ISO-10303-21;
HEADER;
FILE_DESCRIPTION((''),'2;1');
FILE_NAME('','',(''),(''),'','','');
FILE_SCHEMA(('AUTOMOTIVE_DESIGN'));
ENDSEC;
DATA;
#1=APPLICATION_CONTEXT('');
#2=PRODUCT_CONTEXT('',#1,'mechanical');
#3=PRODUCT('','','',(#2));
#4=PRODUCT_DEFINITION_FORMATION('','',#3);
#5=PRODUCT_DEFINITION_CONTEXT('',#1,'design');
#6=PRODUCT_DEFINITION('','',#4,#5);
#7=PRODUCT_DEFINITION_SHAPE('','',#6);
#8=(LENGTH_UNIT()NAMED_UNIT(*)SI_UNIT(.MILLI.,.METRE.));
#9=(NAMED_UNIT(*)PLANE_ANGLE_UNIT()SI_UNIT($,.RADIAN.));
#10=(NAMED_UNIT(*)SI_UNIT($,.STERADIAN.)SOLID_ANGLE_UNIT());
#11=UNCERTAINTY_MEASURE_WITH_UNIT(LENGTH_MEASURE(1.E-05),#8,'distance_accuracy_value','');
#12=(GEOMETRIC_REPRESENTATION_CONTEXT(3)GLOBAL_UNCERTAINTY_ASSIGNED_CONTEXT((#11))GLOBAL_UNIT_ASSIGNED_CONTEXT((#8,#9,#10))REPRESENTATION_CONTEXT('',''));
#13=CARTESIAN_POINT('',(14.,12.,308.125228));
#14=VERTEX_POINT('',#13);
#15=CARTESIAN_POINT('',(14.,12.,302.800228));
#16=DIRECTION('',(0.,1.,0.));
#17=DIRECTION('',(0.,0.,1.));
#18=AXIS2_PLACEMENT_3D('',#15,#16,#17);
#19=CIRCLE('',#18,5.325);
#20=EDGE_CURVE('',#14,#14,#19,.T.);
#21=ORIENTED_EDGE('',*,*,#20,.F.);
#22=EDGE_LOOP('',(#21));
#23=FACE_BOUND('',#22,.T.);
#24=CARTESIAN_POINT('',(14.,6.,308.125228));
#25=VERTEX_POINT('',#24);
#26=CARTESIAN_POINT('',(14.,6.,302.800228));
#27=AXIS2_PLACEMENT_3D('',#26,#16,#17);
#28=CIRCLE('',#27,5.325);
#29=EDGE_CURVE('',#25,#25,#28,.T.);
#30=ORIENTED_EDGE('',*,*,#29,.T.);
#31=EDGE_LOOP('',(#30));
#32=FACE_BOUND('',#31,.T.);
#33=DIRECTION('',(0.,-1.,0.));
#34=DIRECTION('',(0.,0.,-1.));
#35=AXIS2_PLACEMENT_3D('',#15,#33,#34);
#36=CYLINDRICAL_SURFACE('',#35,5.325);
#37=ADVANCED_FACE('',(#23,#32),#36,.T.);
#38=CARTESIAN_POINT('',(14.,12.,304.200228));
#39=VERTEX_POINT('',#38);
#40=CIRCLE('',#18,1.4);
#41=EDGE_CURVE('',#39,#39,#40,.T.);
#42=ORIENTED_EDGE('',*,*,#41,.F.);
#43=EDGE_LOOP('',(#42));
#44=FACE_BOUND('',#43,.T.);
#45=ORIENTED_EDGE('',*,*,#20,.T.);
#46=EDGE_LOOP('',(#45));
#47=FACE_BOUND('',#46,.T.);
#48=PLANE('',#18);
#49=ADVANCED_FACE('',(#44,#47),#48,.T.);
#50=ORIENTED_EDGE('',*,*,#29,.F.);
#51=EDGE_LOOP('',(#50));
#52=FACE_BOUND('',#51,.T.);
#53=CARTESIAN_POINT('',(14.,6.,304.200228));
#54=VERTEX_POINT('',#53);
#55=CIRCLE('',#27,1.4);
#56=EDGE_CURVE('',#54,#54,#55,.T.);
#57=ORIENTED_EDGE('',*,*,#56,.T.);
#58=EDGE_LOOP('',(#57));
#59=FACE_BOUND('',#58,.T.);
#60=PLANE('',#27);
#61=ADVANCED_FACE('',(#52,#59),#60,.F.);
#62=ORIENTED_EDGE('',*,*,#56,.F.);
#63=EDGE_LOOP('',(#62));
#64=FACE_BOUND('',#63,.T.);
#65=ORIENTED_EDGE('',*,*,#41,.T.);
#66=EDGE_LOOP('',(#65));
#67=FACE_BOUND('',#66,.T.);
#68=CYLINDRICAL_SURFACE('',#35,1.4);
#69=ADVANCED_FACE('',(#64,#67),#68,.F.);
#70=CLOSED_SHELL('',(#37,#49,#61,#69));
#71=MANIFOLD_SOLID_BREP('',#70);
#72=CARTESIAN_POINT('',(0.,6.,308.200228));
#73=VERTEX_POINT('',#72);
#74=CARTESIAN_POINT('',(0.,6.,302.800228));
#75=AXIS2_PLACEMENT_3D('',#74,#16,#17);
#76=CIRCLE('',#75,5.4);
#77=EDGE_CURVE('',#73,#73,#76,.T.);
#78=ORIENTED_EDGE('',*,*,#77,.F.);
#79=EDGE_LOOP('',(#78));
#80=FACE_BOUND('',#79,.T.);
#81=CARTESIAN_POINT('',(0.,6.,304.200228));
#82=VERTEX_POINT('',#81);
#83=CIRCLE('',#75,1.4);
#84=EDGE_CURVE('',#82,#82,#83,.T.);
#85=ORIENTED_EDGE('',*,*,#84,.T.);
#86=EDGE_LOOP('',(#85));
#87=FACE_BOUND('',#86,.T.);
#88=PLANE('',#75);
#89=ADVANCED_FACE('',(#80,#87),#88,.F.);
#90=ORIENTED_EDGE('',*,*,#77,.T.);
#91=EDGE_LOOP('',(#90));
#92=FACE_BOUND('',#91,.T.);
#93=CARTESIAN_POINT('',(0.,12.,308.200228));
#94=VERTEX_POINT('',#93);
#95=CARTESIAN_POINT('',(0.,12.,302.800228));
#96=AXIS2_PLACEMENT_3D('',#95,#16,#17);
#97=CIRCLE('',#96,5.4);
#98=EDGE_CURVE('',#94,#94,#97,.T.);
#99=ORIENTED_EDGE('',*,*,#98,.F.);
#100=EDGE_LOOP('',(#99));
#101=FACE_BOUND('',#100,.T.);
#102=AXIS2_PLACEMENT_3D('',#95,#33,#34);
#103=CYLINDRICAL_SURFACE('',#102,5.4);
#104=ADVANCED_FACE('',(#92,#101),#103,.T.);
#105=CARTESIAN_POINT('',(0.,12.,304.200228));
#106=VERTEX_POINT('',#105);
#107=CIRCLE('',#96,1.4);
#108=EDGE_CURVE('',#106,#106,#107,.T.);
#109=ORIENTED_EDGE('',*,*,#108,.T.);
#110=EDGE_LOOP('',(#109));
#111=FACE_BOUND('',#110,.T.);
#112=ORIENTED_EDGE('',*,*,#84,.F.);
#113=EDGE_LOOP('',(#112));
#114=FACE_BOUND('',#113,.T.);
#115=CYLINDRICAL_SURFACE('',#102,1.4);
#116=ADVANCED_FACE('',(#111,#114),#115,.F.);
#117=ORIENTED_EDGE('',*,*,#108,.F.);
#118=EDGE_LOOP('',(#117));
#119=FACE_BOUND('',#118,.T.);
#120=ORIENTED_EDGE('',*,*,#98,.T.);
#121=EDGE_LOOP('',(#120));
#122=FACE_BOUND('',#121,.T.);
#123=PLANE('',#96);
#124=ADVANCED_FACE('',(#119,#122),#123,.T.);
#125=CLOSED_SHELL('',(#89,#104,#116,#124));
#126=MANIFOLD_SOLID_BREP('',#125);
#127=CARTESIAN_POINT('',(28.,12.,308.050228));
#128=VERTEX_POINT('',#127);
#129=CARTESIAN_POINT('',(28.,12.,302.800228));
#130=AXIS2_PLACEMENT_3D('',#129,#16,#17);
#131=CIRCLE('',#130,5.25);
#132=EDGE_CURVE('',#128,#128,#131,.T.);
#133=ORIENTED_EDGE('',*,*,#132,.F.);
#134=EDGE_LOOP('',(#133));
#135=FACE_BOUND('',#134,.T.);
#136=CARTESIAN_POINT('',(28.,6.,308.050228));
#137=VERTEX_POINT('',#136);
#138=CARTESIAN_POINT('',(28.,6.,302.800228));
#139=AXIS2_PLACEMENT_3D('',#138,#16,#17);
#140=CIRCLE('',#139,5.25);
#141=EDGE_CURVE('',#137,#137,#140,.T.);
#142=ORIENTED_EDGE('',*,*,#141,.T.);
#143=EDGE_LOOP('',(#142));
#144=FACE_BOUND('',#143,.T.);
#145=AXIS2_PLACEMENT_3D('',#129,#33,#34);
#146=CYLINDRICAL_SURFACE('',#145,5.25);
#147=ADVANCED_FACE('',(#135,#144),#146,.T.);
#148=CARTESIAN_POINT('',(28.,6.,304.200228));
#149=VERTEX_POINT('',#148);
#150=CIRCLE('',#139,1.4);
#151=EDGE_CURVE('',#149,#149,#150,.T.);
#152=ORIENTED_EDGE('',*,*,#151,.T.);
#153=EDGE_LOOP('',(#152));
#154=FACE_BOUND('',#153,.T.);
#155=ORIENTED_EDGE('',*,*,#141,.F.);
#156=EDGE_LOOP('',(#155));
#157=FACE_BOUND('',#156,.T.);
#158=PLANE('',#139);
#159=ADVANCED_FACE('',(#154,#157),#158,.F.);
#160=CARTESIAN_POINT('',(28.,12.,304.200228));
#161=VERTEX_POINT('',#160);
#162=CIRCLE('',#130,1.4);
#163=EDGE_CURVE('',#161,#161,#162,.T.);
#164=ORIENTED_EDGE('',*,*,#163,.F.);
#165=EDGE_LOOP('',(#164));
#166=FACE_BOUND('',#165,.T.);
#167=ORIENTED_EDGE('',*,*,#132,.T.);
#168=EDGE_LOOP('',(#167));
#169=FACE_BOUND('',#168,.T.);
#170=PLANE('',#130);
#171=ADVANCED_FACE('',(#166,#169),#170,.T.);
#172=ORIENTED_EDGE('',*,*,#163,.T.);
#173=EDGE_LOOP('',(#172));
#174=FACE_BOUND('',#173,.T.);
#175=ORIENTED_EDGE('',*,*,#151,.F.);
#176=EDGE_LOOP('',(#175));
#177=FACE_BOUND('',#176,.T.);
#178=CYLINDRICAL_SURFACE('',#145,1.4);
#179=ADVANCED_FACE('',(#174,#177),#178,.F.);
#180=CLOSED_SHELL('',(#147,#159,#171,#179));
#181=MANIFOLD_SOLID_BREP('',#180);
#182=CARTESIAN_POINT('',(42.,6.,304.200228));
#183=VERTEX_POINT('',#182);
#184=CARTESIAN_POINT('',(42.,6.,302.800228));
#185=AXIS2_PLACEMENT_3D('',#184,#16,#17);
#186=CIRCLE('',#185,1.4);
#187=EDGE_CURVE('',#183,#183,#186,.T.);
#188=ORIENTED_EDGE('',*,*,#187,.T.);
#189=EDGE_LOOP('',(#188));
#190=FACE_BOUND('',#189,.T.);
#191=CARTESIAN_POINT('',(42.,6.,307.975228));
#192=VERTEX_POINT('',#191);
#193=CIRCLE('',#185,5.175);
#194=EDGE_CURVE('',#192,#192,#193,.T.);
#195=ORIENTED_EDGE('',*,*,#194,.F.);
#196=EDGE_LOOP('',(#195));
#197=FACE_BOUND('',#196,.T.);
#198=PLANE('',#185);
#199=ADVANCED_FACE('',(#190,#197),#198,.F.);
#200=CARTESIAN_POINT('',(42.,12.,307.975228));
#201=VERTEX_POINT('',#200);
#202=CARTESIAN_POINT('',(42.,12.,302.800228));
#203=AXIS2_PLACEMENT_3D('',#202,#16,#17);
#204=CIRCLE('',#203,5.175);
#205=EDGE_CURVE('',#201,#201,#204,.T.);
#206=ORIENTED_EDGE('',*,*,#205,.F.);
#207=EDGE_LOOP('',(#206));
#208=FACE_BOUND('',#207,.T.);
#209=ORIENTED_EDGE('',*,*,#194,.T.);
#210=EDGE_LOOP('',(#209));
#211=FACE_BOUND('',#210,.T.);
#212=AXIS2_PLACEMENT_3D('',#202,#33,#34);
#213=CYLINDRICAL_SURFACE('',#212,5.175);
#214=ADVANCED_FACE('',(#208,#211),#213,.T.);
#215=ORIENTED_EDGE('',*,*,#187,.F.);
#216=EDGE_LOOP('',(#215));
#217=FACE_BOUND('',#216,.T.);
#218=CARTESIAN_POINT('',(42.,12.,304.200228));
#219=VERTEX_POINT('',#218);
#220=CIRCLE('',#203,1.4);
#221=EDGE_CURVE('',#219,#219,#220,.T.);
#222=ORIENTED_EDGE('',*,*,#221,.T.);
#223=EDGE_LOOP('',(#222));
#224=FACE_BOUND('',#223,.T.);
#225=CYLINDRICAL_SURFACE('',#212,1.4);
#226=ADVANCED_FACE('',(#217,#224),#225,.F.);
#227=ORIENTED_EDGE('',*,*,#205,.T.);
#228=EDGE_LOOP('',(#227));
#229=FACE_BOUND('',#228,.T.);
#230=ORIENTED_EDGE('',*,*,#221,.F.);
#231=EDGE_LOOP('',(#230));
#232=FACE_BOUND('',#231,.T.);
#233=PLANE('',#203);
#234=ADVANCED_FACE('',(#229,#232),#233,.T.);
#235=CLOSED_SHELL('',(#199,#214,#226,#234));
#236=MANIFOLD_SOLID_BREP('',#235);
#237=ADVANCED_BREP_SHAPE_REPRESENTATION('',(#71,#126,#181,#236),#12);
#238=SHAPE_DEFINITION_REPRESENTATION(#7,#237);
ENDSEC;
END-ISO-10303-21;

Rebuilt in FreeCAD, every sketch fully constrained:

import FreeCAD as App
import Part
import Sketcher
from FreeCAD import Vector

doc = App.newDocument("Part")
body = doc.addObject("PartDesign::Body", "Body")

sketch1 = body.newObject("Sketcher::SketchObject", "Sketch")
sketch1.AttachmentSupport = (doc.getObject("XZ_Plane"), [""])
sketch1.MapMode = "FlatFace"
sketch1.AttachmentOffset = App.Placement(Vector(0, 0, -6), App.Rotation())
sketch1.addGeometry(Part.Circle(Vector(0, 302.800228, 0), Vector(0, 0, 1), 5.4), False)
sketch1.addGeometry(Part.Circle(Vector(0, 302.800228, 0), Vector(0, 0, 1), 1.4), False)
sketch1.addConstraint(Sketcher.Constraint("Coincident", 1, 3, 0, 3))
sketch1.addConstraint(Sketcher.Constraint("PointOnObject", 0, 3, -2))
sketch1.addConstraint(Sketcher.Constraint("Diameter", 0, 10.8))
sketch1.addConstraint(Sketcher.Constraint("Diameter", 1, 2.8))
sketch1.addConstraint(Sketcher.Constraint("DistanceY", -1, 1, 0, 3, 302.800228))
pad1 = body.newObject("PartDesign::Pad", "Pad")
pad1.Profile = sketch1
pad1.Length = 6
pad1.Reversed = True
body2 = doc.addObject("PartDesign::Body", "Body001")

sketch2 = body2.newObject("Sketcher::SketchObject", "Sketch001")
sketch2.AttachmentSupport = (doc.getObject("XZ_Plane001"), [""])
sketch2.MapMode = "FlatFace"
sketch2.AttachmentOffset = App.Placement(Vector(0, 0, -6), App.Rotation())
sketch2.addGeometry(Part.Circle(Vector(14, 302.800228, 0), Vector(0, 0, 1), 5.325), False)
sketch2.addGeometry(Part.Circle(Vector(14, 302.800228, 0), Vector(0, 0, 1), 1.4), False)
sketch2.addConstraint(Sketcher.Constraint("Coincident", 1, 3, 0, 3))
sketch2.addConstraint(Sketcher.Constraint("Diameter", 1, 2.8))
sketch2.addConstraint(Sketcher.Constraint("Diameter", 0, 10.65))
sketch2.addConstraint(Sketcher.Constraint("DistanceX", -1, 1, 0, 3, 14.0))
sketch2.addConstraint(Sketcher.Constraint("DistanceY", -1, 1, 0, 3, 302.800228))
pad2 = body2.newObject("PartDesign::Pad", "Pad001")
pad2.Profile = sketch2
pad2.Length = 6
pad2.Reversed = True
body3 = doc.addObject("PartDesign::Body", "Body002")

sketch3 = body3.newObject("Sketcher::SketchObject", "Sketch002")
sketch3.AttachmentSupport = (doc.getObject("XZ_Plane002"), [""])
sketch3.MapMode = "FlatFace"
sketch3.AttachmentOffset = App.Placement(Vector(0, 0, -6), App.Rotation())
sketch3.addGeometry(Part.Circle(Vector(28, 302.800228, 0), Vector(0, 0, 1), 5.25), False)
sketch3.addGeometry(Part.Circle(Vector(28, 302.800228, 0), Vector(0, 0, 1), 1.4), False)
sketch3.addConstraint(Sketcher.Constraint("Coincident", 1, 3, 0, 3))
sketch3.addConstraint(Sketcher.Constraint("Diameter", 0, 10.5))
sketch3.addConstraint(Sketcher.Constraint("Diameter", 1, 2.8))
sketch3.addConstraint(Sketcher.Constraint("DistanceX", -1, 1, 0, 3, 28.0))
sketch3.addConstraint(Sketcher.Constraint("DistanceY", -1, 1, 0, 3, 302.800228))
pad3 = body3.newObject("PartDesign::Pad", "Pad002")
pad3.Profile = sketch3
pad3.Length = 6
pad3.Reversed = True
body4 = doc.addObject("PartDesign::Body", "Body003")

sketch4 = body4.newObject("Sketcher::SketchObject", "Sketch003")
sketch4.AttachmentSupport = (doc.getObject("XZ_Plane003"), [""])
sketch4.MapMode = "FlatFace"
sketch4.AttachmentOffset = App.Placement(Vector(0, 0, -6), App.Rotation())
sketch4.addGeometry(Part.Circle(Vector(42, 302.800228, 0), Vector(0, 0, 1), 5.175), False)
sketch4.addGeometry(Part.Circle(Vector(42, 302.800228, 0), Vector(0, 0, 1), 1.4), False)
sketch4.addConstraint(Sketcher.Constraint("Coincident", 1, 3, 0, 3))
sketch4.addConstraint(Sketcher.Constraint("Diameter", 1, 2.8))
sketch4.addConstraint(Sketcher.Constraint("Diameter", 0, 10.35))
sketch4.addConstraint(Sketcher.Constraint("DistanceX", -1, 1, 0, 3, 42.0))
sketch4.addConstraint(Sketcher.Constraint("DistanceY", -1, 1, 0, 3, 302.800228))
pad4 = body4.newObject("PartDesign::Pad", "Pad003")
pad4.Profile = sketch4
pad4.Length = 6
pad4.Reversed = True

doc.recompute()
